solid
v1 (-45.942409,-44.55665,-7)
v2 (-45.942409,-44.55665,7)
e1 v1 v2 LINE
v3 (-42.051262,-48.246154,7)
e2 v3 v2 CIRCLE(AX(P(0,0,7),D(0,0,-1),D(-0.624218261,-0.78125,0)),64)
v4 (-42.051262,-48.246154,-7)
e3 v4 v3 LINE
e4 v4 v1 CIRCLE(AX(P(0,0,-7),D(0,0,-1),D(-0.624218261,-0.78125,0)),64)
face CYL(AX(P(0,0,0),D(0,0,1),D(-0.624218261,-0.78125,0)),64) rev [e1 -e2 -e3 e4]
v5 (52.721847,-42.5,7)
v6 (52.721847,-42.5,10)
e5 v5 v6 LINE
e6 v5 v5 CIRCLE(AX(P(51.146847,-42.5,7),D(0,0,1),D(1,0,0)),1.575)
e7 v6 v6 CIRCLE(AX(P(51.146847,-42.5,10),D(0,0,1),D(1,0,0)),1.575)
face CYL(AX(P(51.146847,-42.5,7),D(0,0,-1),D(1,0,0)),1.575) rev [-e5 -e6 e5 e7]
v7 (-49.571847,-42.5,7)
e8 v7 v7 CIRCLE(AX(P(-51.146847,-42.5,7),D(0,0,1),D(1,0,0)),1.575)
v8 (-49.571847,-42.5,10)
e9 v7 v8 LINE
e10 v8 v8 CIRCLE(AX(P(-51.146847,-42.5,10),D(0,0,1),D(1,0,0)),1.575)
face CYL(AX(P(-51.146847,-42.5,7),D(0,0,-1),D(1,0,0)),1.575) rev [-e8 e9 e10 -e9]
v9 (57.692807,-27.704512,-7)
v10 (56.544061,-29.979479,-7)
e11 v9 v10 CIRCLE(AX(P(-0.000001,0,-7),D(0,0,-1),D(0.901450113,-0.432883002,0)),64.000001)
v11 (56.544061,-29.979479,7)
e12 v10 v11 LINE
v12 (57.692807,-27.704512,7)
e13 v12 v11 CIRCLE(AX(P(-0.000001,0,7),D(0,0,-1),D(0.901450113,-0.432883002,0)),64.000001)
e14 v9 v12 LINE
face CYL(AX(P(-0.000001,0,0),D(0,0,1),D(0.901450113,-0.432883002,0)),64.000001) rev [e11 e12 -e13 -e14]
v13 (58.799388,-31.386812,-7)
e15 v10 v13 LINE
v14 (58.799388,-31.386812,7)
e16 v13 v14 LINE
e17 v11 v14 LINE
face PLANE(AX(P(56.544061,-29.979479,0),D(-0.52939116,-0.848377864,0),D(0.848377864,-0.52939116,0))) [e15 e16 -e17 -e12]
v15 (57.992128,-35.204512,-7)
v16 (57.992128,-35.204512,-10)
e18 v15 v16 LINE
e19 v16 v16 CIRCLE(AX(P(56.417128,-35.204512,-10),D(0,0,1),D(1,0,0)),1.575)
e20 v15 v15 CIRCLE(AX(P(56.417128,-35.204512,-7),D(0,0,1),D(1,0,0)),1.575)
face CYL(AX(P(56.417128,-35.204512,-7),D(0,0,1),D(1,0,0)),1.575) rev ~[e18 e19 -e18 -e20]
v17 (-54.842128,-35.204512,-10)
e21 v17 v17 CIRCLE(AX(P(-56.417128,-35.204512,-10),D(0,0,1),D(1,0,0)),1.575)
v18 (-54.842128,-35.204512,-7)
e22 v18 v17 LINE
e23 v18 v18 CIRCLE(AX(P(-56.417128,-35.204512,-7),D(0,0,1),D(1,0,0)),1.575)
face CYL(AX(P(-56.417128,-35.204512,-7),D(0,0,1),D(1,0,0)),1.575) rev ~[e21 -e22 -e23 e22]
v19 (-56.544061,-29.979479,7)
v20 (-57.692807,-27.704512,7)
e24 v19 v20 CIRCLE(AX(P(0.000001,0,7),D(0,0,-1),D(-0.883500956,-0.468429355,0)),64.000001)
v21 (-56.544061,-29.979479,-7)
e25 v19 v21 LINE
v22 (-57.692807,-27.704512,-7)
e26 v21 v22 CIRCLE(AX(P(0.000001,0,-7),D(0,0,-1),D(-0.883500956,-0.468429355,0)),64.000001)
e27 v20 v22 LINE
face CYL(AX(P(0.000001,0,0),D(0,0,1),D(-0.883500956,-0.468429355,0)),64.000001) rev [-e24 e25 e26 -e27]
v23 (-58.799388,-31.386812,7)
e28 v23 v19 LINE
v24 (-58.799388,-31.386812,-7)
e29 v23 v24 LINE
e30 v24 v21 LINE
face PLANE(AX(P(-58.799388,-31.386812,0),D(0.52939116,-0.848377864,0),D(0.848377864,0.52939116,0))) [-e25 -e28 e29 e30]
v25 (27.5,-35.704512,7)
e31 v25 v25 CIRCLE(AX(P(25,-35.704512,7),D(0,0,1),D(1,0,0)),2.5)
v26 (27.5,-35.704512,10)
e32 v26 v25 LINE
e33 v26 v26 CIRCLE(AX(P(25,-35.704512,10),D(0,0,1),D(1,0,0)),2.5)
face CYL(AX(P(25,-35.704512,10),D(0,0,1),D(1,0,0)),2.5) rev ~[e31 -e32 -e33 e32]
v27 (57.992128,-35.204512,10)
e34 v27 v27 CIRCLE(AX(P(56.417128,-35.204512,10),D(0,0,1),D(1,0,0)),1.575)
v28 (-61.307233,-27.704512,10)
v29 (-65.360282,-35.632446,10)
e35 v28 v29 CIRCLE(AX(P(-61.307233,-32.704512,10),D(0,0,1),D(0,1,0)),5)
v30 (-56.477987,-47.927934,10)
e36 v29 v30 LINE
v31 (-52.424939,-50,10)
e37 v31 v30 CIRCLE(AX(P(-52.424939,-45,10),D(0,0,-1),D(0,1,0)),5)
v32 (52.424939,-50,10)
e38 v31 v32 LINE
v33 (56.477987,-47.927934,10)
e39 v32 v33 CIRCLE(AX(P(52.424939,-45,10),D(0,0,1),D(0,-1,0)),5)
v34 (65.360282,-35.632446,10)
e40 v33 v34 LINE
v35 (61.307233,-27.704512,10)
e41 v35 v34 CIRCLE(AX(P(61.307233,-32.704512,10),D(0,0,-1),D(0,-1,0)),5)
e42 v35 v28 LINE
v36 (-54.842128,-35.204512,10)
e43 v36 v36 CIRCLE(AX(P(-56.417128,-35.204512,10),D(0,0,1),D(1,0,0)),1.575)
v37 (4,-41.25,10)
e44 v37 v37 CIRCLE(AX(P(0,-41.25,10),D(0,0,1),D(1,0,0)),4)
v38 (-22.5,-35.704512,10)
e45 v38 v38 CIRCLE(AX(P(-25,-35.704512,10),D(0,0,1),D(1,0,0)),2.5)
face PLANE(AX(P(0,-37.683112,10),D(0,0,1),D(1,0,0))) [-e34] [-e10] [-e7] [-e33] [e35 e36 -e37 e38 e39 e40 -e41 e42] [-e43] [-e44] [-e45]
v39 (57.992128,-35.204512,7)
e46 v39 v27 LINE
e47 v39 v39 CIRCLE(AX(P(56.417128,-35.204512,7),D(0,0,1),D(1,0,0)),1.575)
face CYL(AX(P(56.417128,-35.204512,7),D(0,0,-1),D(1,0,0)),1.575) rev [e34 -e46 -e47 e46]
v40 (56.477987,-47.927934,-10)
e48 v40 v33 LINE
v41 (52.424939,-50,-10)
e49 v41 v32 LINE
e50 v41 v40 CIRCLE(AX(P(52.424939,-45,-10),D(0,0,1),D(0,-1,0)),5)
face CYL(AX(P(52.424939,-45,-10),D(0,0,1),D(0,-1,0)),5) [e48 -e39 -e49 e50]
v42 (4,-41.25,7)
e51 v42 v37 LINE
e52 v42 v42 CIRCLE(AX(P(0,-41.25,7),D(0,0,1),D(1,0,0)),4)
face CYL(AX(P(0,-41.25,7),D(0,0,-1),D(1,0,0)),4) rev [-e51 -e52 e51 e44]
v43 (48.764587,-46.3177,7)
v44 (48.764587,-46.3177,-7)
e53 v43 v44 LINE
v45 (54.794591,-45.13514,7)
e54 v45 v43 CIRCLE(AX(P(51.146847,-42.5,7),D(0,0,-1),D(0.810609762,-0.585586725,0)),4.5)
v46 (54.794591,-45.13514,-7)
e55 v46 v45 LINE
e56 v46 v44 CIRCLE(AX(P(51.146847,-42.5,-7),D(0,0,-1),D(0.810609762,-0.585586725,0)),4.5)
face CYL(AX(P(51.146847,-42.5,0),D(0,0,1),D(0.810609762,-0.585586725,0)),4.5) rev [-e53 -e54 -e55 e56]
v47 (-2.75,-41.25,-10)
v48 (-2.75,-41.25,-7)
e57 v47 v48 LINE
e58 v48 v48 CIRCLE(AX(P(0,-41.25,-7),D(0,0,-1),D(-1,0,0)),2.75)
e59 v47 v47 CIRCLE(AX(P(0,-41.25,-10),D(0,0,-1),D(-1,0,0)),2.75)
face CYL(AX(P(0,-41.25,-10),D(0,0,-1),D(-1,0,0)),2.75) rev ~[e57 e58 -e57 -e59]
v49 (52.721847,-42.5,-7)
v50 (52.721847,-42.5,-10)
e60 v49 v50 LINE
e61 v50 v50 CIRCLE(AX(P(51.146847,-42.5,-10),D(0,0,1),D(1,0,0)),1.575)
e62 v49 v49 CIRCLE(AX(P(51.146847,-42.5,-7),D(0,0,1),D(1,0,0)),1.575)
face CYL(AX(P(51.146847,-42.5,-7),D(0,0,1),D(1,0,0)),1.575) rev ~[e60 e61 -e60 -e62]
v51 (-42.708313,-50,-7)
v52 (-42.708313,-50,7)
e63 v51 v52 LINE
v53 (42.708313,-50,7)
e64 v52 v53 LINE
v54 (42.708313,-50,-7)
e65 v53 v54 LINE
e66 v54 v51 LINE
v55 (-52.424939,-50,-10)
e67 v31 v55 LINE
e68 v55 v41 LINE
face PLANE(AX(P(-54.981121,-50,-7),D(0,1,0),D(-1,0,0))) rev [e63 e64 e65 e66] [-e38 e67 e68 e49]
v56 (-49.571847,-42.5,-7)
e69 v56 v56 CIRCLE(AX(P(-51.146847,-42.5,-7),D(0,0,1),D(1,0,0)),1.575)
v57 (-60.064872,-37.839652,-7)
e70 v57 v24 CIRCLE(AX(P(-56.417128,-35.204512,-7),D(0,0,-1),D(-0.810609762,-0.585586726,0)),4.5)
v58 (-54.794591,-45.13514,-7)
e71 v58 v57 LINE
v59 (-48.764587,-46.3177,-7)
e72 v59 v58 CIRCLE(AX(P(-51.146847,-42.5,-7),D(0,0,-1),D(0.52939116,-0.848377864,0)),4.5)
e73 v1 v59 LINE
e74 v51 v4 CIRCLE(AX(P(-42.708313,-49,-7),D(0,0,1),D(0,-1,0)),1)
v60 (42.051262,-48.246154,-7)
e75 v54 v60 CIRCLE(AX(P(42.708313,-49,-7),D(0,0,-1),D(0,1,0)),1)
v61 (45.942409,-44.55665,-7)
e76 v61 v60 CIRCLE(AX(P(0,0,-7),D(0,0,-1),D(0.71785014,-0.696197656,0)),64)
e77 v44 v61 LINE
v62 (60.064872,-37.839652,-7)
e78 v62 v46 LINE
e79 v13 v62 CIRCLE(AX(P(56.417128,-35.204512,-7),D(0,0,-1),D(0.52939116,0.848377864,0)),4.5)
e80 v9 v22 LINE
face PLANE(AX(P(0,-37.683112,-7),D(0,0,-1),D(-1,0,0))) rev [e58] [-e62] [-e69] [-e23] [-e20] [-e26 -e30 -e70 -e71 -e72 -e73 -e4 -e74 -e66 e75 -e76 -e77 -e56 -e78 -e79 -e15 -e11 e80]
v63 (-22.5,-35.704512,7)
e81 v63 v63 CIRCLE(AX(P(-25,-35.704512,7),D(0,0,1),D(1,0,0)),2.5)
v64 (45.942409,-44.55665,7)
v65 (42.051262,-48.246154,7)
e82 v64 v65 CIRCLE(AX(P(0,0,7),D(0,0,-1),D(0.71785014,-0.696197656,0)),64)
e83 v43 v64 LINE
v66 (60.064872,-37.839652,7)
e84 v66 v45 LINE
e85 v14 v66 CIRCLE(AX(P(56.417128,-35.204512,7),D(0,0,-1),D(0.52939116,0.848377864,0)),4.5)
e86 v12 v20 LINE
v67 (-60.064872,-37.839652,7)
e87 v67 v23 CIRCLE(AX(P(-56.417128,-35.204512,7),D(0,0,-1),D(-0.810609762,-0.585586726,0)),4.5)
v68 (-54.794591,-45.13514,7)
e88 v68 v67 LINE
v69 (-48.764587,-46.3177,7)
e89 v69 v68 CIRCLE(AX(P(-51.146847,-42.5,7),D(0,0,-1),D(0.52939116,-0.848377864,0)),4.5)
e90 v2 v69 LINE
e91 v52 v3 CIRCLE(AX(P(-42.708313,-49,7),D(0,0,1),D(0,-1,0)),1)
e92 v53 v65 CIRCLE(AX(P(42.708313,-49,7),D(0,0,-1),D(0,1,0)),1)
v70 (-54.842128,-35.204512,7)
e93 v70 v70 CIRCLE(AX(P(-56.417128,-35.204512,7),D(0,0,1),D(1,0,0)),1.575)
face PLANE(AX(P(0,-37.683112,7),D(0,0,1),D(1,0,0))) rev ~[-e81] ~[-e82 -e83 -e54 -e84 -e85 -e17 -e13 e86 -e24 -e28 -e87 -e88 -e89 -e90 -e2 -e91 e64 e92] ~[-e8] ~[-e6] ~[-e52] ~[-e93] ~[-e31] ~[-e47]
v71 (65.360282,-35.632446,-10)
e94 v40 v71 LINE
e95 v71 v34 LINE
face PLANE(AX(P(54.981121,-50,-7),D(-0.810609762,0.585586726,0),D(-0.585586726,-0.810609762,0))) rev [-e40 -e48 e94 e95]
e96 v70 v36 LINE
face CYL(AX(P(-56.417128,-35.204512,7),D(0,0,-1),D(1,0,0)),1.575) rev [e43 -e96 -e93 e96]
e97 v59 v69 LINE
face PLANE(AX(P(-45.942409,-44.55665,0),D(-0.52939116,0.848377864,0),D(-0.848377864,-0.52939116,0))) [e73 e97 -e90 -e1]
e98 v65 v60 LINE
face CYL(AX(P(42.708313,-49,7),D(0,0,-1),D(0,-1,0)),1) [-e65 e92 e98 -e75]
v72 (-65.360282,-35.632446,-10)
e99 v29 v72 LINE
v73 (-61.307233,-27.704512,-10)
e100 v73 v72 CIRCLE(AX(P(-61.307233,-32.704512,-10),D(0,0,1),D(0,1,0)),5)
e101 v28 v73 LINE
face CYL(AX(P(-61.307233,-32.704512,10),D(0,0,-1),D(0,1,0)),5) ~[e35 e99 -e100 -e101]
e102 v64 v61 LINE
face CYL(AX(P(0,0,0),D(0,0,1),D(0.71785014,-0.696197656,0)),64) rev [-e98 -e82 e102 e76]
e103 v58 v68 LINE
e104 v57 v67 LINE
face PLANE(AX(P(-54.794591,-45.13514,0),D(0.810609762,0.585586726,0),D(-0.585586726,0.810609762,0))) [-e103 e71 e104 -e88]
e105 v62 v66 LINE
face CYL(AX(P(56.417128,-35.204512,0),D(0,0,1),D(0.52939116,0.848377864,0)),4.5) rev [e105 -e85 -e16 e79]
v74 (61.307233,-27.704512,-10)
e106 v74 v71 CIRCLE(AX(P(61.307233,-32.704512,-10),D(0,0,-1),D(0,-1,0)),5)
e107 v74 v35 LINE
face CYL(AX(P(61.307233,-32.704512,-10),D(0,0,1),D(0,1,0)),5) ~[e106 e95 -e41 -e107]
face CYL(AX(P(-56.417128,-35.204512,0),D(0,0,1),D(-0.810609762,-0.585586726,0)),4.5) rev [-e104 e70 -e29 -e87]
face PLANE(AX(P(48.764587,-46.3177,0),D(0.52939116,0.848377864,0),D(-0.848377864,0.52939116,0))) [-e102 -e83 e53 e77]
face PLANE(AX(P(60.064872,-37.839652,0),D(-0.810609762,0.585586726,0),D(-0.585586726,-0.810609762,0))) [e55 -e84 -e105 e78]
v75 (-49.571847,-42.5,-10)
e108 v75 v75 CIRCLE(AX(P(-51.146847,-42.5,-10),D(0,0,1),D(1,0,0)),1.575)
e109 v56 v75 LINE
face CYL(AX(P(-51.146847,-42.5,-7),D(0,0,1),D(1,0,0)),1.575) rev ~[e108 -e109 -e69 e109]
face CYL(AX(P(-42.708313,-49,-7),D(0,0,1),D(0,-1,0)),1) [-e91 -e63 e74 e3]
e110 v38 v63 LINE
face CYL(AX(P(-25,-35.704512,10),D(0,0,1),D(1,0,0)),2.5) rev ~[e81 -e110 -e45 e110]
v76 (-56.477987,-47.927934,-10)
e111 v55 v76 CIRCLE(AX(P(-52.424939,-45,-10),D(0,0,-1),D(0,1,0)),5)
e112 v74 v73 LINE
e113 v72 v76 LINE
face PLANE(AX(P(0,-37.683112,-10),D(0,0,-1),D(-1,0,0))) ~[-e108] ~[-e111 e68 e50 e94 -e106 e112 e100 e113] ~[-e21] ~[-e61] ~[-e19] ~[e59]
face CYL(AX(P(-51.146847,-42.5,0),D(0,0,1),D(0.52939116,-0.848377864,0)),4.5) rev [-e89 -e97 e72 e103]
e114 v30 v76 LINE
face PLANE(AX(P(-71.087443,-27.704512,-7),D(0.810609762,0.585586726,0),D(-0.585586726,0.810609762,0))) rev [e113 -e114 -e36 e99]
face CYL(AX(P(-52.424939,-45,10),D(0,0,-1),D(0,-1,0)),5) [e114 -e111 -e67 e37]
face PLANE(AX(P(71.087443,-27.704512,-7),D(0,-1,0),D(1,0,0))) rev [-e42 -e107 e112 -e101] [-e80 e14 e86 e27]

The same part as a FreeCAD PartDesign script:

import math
import FreeCAD as App
import Part
import Sketcher
from FreeCAD import Vector


def edges_at(feature, points):
    """Names of the edges that pass closest to the given points."""
    edges = feature.Shape.Edges
    near = lambda p: min(range(len(edges)), key=lambda i: edges[i].distToShape(Part.Vertex(*p))[0])
    return sorted({f"Edge{near(p) + 1}" for p in points})


def add_polygon(sketch, points):
    """Adds a closed chain of lines whose ends are joined by coincident constraints."""
    first, n = sketch.GeometryCount, len(points)
    for a, b in zip(points, points[1:] + points[:1]):
        sketch.addGeometry(Part.LineSegment(App.Vector(*a, 0), App.Vector(*b, 0)), False)
    for i in range(n):
        sketch.addConstraint(Sketcher.Constraint("Coincident", first + i, 2, first + (i + 1) % n, 1))

doc = App.newDocument("Part")
body = doc.addObject("PartDesign::Body", "Body")

sketch1 = body.newObject("Sketcher::SketchObject", "Sketch")
sketch1.AttachmentSupport = (doc.getObject("XY_Plane"), [""])
sketch1.MapMode = "FlatFace"
sketch1.addGeometry([
    Part.LineSegment(Vector(-57.7, -27.7, 0), Vector(-71.1, -27.7, 0)),
    Part.LineSegment(Vector(-71.1, -27.7, 0), Vector(-55, -50, 0)),
    Part.LineSegment(Vector(-55, -50, 0), Vector(-39.9, -50, 0)),
    Part.ArcOfCircle(Part.Circle(Vector(0, 0, 0), Vector(0, 0, 1), 64), math.radians(-135.88), math.radians(-128.62)),
    Part.LineSegment(Vector(-45.9, -44.6, 0), Vector(-48.8, -46.3, 0)),
    Part.ArcOfCircle(Part.Circle(Vector(-51.1, -42.5, 0), Vector(0, 0, 1), 4.5), math.radians(-144), math.radians(-58)),
    Part.LineSegment(Vector(-54.8, -45.1, 0), Vector(-60.1, -37.8, 0)),
    Part.ArcOfCircle(Part.Circle(Vector(-56.4, -35.2, 0), Vector(0, 0, 1), 4.5), math.radians(122), math.radians(216)),
    Part.LineSegment(Vector(-58.8, -31.4, 0), Vector(-56.5, -30, 0)),
    Part.ArcOfCircle(Part.Circle(Vector(0, 0, 0), Vector(0, 0, 1), 64), math.radians(-154.35), math.radians(-152.07)),
], False)
sketch1.addConstraint([
    Sketcher.Constraint("Coincident", 0, 2, 1, 1),
    Sketcher.Constraint("Coincident", 1, 2, 2, 1),
    Sketcher.Constraint("Coincident", 2, 2, 3, 2),
    Sketcher.Constraint("Coincident", 3, 1, 4, 1),
    Sketcher.Constraint("Tangent", 4, 2, 5, 2),
    Sketcher.Constraint("Tangent", 5, 1, 6, 1),
    Sketcher.Constraint("Tangent", 6, 2, 7, 2),
    Sketcher.Constraint("Tangent", 7, 1, 8, 1),
    Sketcher.Constraint("Coincident", 8, 2, 9, 2),
    Sketcher.Constraint("Coincident", 9, 1, 0, 1),
    Sketcher.Constraint("Horizontal", 0),
    Sketcher.Constraint("Horizontal", 2),
    Sketcher.Constraint("Coincident", 3, 3, -1, 1),
    Sketcher.Constraint("Coincident", 9, 3, -1, 1),
    Sketcher.Constraint("Equal", 5, 7),
    Sketcher.Constraint("Equal", 3, 9),
    Sketcher.Constraint("Parallel", 1, 6),
    Sketcher.Constraint("Parallel", 4, 8),
    Sketcher.Constraint("Radius", 3, 64.0),
    Sketcher.Constraint("Radius", 5, 4.5),
    Sketcher.Constraint("Distance", 6, 9.0),
    Sketcher.Constraint("DistanceY", 1, 2, -1, 1, 50.0),
    Sketcher.Constraint("DistanceY", 5, 3, -1, 1, 42.5),
    Sketcher.Constraint("DistanceY", 7, 3, 0, 2, 7.5),
    Sketcher.Constraint("Distance", 8, 2.658399),
    Sketcher.Constraint("DistanceY", 4, 2, -1, 1, 46.3177),
    Sketcher.Constraint("Distance", 1, 27.504588),
    Sketcher.Constraint("DistanceX", 0, 2, 0, 1, 13.394636),
])
pad1 = body.newObject("PartDesign::Pad", "Pad")
pad1.Profile = sketch1
pad1.Length = 14
pad1.Midplane = True
body2 = doc.addObject("PartDesign::Body", "Body001")

sketch2 = body2.newObject("Sketcher::SketchObject", "Sketch001")
sketch2.AttachmentSupport = (doc.getObject("XY_Plane001"), [""])
sketch2.MapMode = "FlatFace"
sketch2.addGeometry([
    Part.LineSegment(Vector(39.9, -50, 0), Vector(55, -50, 0)),
    Part.LineSegment(Vector(55, -50, 0), Vector(71.1, -27.7, 0)),
    Part.LineSegment(Vector(71.1, -27.7, 0), Vector(57.7, -27.7, 0)),
    Part.ArcOfCircle(Part.Circle(Vector(0, 0, 0), Vector(0, 0, 1), 64), math.radians(-27.93), math.radians(-25.65)),
    Part.LineSegment(Vector(56.5, -30, 0), Vector(58.8, -31.4, 0)),
    Part.ArcOfCircle(Part.Circle(Vector(56.4, -35.2, 0), Vector(0, 0, 1), 4.5), math.radians(-36), math.radians(58)),
    Part.LineSegment(Vector(60.1, -37.8, 0), Vector(54.8, -45.1, 0)),
    Part.ArcOfCircle(Part.Circle(Vector(51.1, -42.5, 0), Vector(0, 0, 1), 4.5), math.radians(-122), math.radians(-36)),
    Part.LineSegment(Vector(48.8, -46.3, 0), Vector(45.9, -44.6, 0)),
    Part.ArcOfCircle(Part.Circle(Vector(0, 0, 0), Vector(0, 0, 1), 64), math.radians(-51.38), math.radians(-44.12)),
], False)
sketch2.addConstraint([
    Sketcher.Constraint("Coincident", 0, 2, 1, 1),
    Sketcher.Constraint("Coincident", 1, 2, 2, 1),
    Sketcher.Constraint("Coincident", 2, 2, 3, 2),
    Sketcher.Constraint("Coincident", 3, 1, 4, 1),
    Sketcher.Constraint("Tangent", 4, 2, 5, 2),
    Sketcher.Constraint("Tangent", 5, 1, 6, 1),
    Sketcher.Constraint("Tangent", 6, 2, 7, 2),
    Sketcher.Constraint("Tangent", 7, 1, 8, 1),
    Sketcher.Constraint("Coincident", 8, 2, 9, 2),
    Sketcher.Constraint("Coincident", 9, 1, 0, 1),
    Sketcher.Constraint("Horizontal", 0),
    Sketcher.Constraint("Horizontal", 2),
    Sketcher.Constraint("Coincident", 3, 3, -1, 1),
    Sketcher.Constraint("Coincident", 9, 3, -1, 1),
    Sketcher.Constraint("Equal", 5, 7),
    Sketcher.Constraint("Equal", 3, 9),
    Sketcher.Constraint("Parallel", 1, 6),
    Sketcher.Constraint("Parallel", 4, 8),
    Sketcher.Constraint("Radius", 3, 64.000001),
    Sketcher.Constraint("Radius", 5, 4.5),
    Sketcher.Constraint("Distance", 6, 9.0),
    Sketcher.Constraint("DistanceY", 0, 2, -1, 1, 50.0),
    Sketcher.Constraint("DistanceY", 7, 3, -1, 1, 42.5),
    Sketcher.Constraint("DistanceY", 5, 3, 1, 2, 7.5),
    Sketcher.Constraint("Distance", 4, 2.658399),
    Sketcher.Constraint("DistanceY", 7, 1, -1, 1, 46.3177),
    Sketcher.Constraint("Distance", 1, 27.504588),
    Sketcher.Constraint("DistanceX", 0, 1, 0, 2, 15.031152),
])
pad2 = body2.newObject("PartDesign::Pad", "Pad001")
pad2.Profile = sketch2
pad2.Length = 14
pad2.Midplane = True
body.AllowCompound = True
doc.recompute()

boolean = body.newObject("PartDesign::Boolean", "Boolean")
boolean.Type = "Fuse"
boolean.addObjects([body2])

sketch3 = body.newObject("Sketcher::SketchObject", "Sketch002")
sketch3.AttachmentSupport = (doc.getObject("XY_Plane"), [""])
sketch3.MapMode = "FlatFace"
sketch3.AttachmentOffset = App.Placement(Vector(0, 0, 7), App.Rotation())
add_polygon(sketch3, [(-55, -50), (55, -50), (71.1, -27.7), (-71.1, -27.7)])
sketch3.addGeometry(Part.Circle(Vector(-51.1, -42.5, 0), Vector(0, 0, 1), 1.6), False)
sketch3.addGeometry(Part.Circle(Vector(51.1, -42.5, 0), Vector(0, 0, 1), 1.6), False)
sketch3.addGeometry(Part.Circle(Vector(0, -41.2, 0), Vector(0, 0, 1), 4), False)
sketch3.addGeometry(Part.Circle(Vector(-56.4, -35.2, 0), Vector(0, 0, 1), 1.6), False)
sketch3.addGeometry(Part.Circle(Vector(56.4, -35.2, 0), Vector(0, 0, 1), 1.6), False)
sketch3.addConstraint([
    Sketcher.Constraint("Horizontal", 0),
    Sketcher.Constraint("Horizontal", 2),
    Sketcher.Constraint("Equal", 4, 5),
    Sketcher.Constraint("Equal", 5, 7),
    Sketcher.Constraint("Equal", 7, 8),
    Sketcher.Constraint("Symmetric", 4, 3, 5, 3, -2),
    Sketcher.Constraint("Symmetric", 7, 3, 8, 3, -2),
    Sketcher.Constraint("PointOnObject", 6, 3, -2),
    Sketcher.Constraint("Equal", 1, 3),
    Sketcher.Constraint("Diameter", 6, 8.0),
    Sketcher.Constraint("Diameter", 4, 3.15),
    Sketcher.Constraint("DistanceY", 0, 2, -1, 1, 50.0),
    Sketcher.Constraint("DistanceY", 4, 3, -1, 1, 42.5),
    Sketcher.Constraint("DistanceY", 8, 3, 1, 2, 7.5),
    Sketcher.Constraint("DistanceY", 6, 3, -1, 1, 41.25),
    Sketcher.Constraint("DistanceX", 0, 1, 0, 2, 109.962242),
    Sketcher.Constraint("Distance", 1, 27.504588),
    Sketcher.Constraint("DistanceX", 2, 2, 2, 1, 142.174886),
    Sketcher.Constraint("DistanceX", -1, 1, 0, 2, 54.981121),
    Sketcher.Constraint("DistanceX", 7, 3, 4, 3, 5.270281),
    Sketcher.Constraint("DistanceX", 4, 3, 0, 2, 106.127968),
])
pad3 = body.newObject("PartDesign::Pad", "Pad002")
pad3.Profile = sketch3
pad3.Length = 3
doc.recompute()

mirrored = body.newObject("PartDesign::Mirrored", "Mirrored")
mirrored.Originals = [pad3]
mirrored.MirrorPlane = (doc.getObject("XY_Plane"), [""])
body.Tip = mirrored
doc.recompute()

fillet = body.newObject("PartDesign::Fillet", "Fillet")
fillet.Base = (mirrored, edges_at(mirrored, [
    (-54.981, -50, 0),
    (-71.087, -27.705, 0),
    (54.981, -50, 0),
    (71.087, -27.705, 0),
]))
fillet.Radius = 5
doc.recompute()

fillet2 = body.newObject("PartDesign::Fillet", "Fillet001")
fillet2.Base = (fillet, edges_at(fillet, [(-39.95, -50, 0), (39.95, -50, 0)]))
fillet2.Radius = 1

sketch4 = body.newObject("Sketcher::SketchObject", "Sketch003")
sketch4.AttachmentSupport = (doc.getObject("XY_Plane"), [""])
sketch4.MapMode = "FlatFace"
sketch4.AttachmentOffset = App.Placement(Vector(0, 0, -10), App.Rotation())
sketch4.addGeometry([
    Part.Circle(Vector(0, -41.2, 0), Vector(0, 0, 1), 6),
    Part.Circle(Vector(0, -41.2, 0), Vector(0, 0, 1), 2.8),
], False)
sketch4.addConstraint([
    Sketcher.Constraint("Coincident", 1, 3, 0, 3),
    Sketcher.Constraint("PointOnObject", 0, 3, -2),
    Sketcher.Constraint("Diameter", 1, 5.5),
    Sketcher.Constraint("Diameter", 0, 12.02962),
    Sketcher.Constraint("DistanceY", 0, 3, -1, 1, 41.25),
])
pad4 = body.newObject("PartDesign::Pad", "Pad003")
pad4.Profile = sketch4
pad4.Length = 3

sketch5 = body.newObject("Sketcher::SketchObject", "Sketch004")
sketch5.AttachmentSupport = (doc.getObject("XY_Plane"), [""])
sketch5.MapMode = "FlatFace"
sketch5.AttachmentOffset = App.Placement(Vector(0, 0, 10), App.Rotation())
sketch5.addGeometry([
    Part.Circle(Vector(-25, -35.7, 0), Vector(0, 0, 1), 2.5),
    Part.Circle(Vector(25, -35.7, 0), Vector(0, 0, 1), 2.5),
], False)
sketch5.addConstraint([
    Sketcher.Constraint("Equal", 0, 1),
    Sketcher.Constraint("Symmetric", 0, 3, 1, 3, -2),
    Sketcher.Constraint("Diameter", 0, 5.0),
    Sketcher.Constraint("DistanceX", 0, 3, -1, 1, 25.0),
    Sketcher.Constraint("DistanceY", 0, 3, -1, 1, 35.704512),
])
pocket1 = body.newObject("PartDesign::Pocket", "Pocket")
pocket1.Profile = sketch5
pocket1.Length = 10

doc.recompute()
